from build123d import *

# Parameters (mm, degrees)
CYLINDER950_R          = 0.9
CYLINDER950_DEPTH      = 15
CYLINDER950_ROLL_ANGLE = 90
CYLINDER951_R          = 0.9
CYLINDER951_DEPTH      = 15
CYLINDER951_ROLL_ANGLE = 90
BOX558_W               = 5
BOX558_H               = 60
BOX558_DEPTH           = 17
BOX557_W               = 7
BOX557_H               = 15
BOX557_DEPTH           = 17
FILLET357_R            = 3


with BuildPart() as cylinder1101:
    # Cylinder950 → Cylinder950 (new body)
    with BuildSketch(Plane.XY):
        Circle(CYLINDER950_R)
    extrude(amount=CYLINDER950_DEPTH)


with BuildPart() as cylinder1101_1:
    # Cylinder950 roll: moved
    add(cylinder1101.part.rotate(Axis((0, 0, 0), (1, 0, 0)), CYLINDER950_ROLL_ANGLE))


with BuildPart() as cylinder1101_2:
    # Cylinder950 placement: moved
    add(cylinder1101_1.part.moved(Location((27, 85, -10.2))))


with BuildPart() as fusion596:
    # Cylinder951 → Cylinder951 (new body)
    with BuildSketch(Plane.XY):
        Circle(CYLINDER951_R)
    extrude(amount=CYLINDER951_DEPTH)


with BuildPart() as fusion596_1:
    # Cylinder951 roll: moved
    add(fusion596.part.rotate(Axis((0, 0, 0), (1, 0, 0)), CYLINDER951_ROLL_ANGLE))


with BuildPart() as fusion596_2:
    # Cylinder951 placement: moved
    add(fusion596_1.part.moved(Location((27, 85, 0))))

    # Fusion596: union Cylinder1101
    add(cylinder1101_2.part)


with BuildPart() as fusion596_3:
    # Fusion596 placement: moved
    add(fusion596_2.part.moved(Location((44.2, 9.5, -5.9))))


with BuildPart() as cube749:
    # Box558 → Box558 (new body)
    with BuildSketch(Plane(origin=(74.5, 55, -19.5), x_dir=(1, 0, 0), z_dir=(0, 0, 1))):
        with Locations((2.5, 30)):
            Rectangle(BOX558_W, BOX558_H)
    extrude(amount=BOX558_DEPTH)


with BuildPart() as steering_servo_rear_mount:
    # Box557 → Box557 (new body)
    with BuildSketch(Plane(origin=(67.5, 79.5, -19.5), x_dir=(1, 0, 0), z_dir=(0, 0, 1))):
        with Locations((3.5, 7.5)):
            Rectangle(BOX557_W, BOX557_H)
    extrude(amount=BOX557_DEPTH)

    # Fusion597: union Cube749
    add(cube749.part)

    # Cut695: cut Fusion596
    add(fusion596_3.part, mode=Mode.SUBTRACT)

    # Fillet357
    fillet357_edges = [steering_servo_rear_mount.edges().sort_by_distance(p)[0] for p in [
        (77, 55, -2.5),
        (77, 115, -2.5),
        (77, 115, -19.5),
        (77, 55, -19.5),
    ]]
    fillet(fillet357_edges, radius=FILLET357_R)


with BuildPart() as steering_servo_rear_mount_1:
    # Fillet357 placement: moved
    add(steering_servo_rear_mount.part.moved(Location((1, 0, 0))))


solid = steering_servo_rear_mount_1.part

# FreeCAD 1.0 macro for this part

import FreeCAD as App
import Part
import Sketcher

V = App.Vector
Q = App.Units.Quantity


def edges_at(feature, points):
    """Names of the edges that pass closest to the given points."""
    edges = feature.Shape.Edges
    near = lambda p: min(range(len(edges)), key=lambda i: edges[i].distToShape(Part.Vertex(*p))[0])
    return sorted({f"Edge{near(p) + 1}" for p in points})


def add_polygon(sketch, points):
    """Adds a closed chain of lines whose ends are joined by coincident constraints."""
    first, n = sketch.GeometryCount, len(points)
    for a, b in zip(points, points[1:] + points[:1]):
        sketch.addGeometry(Part.LineSegment(App.Vector(*a, 0), App.Vector(*b, 0)), False)
    for i in range(n):
        sketch.addConstraint(Sketcher.Constraint("Coincident", first + i, 2, first + (i + 1) % n, 1))

doc = App.newDocument("Part")
body = doc.addObject("PartDesign::Body", "Body")

# Sketch on XY plane
sketch1 = doc.addObject("Sketcher::SketchObject", "Sketch")
body.addObject(sketch1)
sketch1.AttachmentSupport = (doc.XY_Plane, [""])
sketch1.MapMode = "FlatFace"
sketch1.addGeometry(Part.Circle(V(0, 0, 0), V(0, 0, 1), 0.9), False)
sketch1.addConstraint([
    Sketcher.Constraint("Coincident", 0, 3, -1, 1),
    Sketcher.Constraint("Diameter", 0, Q("1.8 mm")),
])
pad1 = doc.addObject("PartDesign::Pad", "Pad")
body.addObject(pad1)
pad1.Profile = sketch1
pad1.Length = 15
body2 = doc.addObject("PartDesign::Body", "Body001")
doc.recompute()

body.Placement = App.Placement(V(0, 0, 0), App.Rotation(V(1, 0, 0), 90))
boolean = doc.addObject("PartDesign::Boolean", "Boolean")
body2.addObject(boolean)
boolean.Type = "Fuse"
boolean.addObjects([body])
body3 = doc.addObject("PartDesign::Body", "Body002")
doc.recompute()

body2.Placement = App.Placement(V(27, 85, -10.2), App.Rotation(V(0, 0, 1), 0))
boolean2 = doc.addObject("PartDesign::Boolean", "Boolean001")
body3.addObject(boolean2)
boolean2.Type = "Fuse"
boolean2.addObjects([body2])
body4 = doc.addObject("PartDesign::Body", "Body003")

# Sketch on XY plane
sketch2 = doc.addObject("Sketcher::SketchObject", "Sketch001")
body4.addObject(sketch2)
sketch2.AttachmentSupport = (doc.getObject("XY_Plane003"), [""])
sketch2.MapMode = "FlatFace"
sketch2.addGeometry(Part.Circle(V(0, 0, 0), V(0, 0, 1), 0.9), False)
sketch2.addConstraint([
    Sketcher.Constraint("Coincident", 0, 3, -1, 1),
    Sketcher.Constraint("Diameter", 0, Q("1.8 mm")),
])
pad2 = doc.addObject("PartDesign::Pad", "Pad001")
body4.addObject(pad2)
pad2.Profile = sketch2
pad2.Length = 15
body5 = doc.addObject("PartDesign::Body", "Body004")
doc.recompute()

body4.Placement = App.Placement(V(0, 0, 0), App.Rotation(V(1, 0, 0), 90))
boolean3 = doc.addObject("PartDesign::Boolean", "Boolean002")
body5.addObject(boolean3)
boolean3.Type = "Fuse"
boolean3.addObjects([body4])
body6 = doc.addObject("PartDesign::Body", "Body005")
body6.AllowCompound = True
doc.recompute()

body5.Placement = App.Placement(V(27, 85, 0), App.Rotation(V(0, 0, 1), 0))
boolean4 = doc.addObject("PartDesign::Boolean", "Boolean003")
body6.addObject(boolean4)
boolean4.Type = "Fuse"
boolean4.addObjects([body5])
doc.recompute()

boolean5 = doc.addObject("PartDesign::Boolean", "Boolean004")
body6.addObject(boolean5)
boolean5.Type = "Fuse"
boolean5.addObjects([body3])
body7 = doc.addObject("PartDesign::Body", "Body006")
body7.AllowCompound = True
doc.recompute()

body6.Placement = App.Placement(V(44.2, 9.5, -5.9), App.Rotation(V(0, 0, 1), 0))
boolean6 = doc.addObject("PartDesign::Boolean", "Boolean005")
body7.addObject(boolean6)
boolean6.Type = "Fuse"
boolean6.addObjects([body6])
body8 = doc.addObject("PartDesign::Body", "Body007")

# Sketch on XY plane
sketch3 = doc.addObject("Sketcher::SketchObject", "Sketch002")
body8.addObject(sketch3)
sketch3.AttachmentSupport = (doc.getObject("XY_Plane007"), [""])
sketch3.MapMode = "FlatFace"
sketch3.AttachmentOffset = App.Placement(V(0, 0, -19.5), App.Rotation())
add_polygon(sketch3, [(74.5, 115), (74.5, 55), (79.5, 55), (79.5, 115)])  # lines 0-3
sketch3.addConstraint([
    Sketcher.Constraint("Vertical", 0),
    Sketcher.Constraint("Horizontal", 1),
    Sketcher.Constraint("Vertical", 2),
    Sketcher.Constraint("Horizontal", 3),
    Sketcher.Constraint("DistanceX", 1, 1, 1, 2, Q("5 mm")),
    Sketcher.Constraint("DistanceY", 0, 2, 0, 1, Q("60 mm")),
    Sketcher.Constraint("DistanceY", -1, 1, 0, 2, Q("55 mm")),
    Sketcher.Constraint("DistanceX", -1, 1, 0, 2, Q("74.5 mm")),
])
pad3 = doc.addObject("PartDesign::Pad", "Pad002")
body8.addObject(pad3)
pad3.Profile = sketch3
pad3.Length = 17
body9 = doc.addObject("PartDesign::Body", "Body008")

# Sketch on XY plane
sketch4 = doc.addObject("Sketcher::SketchObject", "Sketch003")
body9.addObject(sketch4)
sketch4.AttachmentSupport = (doc.getObject("XY_Plane008"), [""])
sketch4.MapMode = "FlatFace"
sketch4.AttachmentOffset = App.Placement(V(0, 0, -19.5), App.Rotation())
add_polygon(sketch4, [(67.5, 94.5), (67.5, 79.5), (74.5, 79.5), (74.5, 94.5)])  # lines 0-3
sketch4.addConstraint([
    Sketcher.Constraint("Vertical", 0),
    Sketcher.Constraint("Horizontal", 1),
    Sketcher.Constraint("Vertical", 2),
    Sketcher.Constraint("Horizontal", 3),
    Sketcher.Constraint("DistanceX", 1, 1, 1, 2, Q("7 mm")),
    Sketcher.Constraint("DistanceY", 0, 2, 0, 1, Q("15 mm")),
    Sketcher.Constraint("DistanceX", -1, 1, 0, 2, Q("67.5 mm")),
    Sketcher.Constraint("DistanceY", -1, 1, 0, 2, Q("79.5 mm")),
])
pad4 = doc.addObject("PartDesign::Pad", "Pad003")
body9.addObject(pad4)
pad4.Profile = sketch4
pad4.Length = 17
doc.recompute()

boolean7 = doc.addObject("PartDesign::Boolean", "Boolean006")
body9.addObject(boolean7)
boolean7.Type = "Fuse"
boolean7.addObjects([body8])
doc.recompute()

boolean8 = doc.addObject("PartDesign::Boolean", "Boolean007")
body9.addObject(boolean8)
boolean8.Type = "Cut"
boolean8.addObjects([body7])
doc.recompute()

fillet = doc.addObject("PartDesign::Fillet", "Fillet")
body9.addObject(fillet)
fillet.Base = (boolean8, edges_at(boolean8, [
    (77, 55, -2.5),
    (77, 115, -2.5),
    (77, 115, -19.5),
    (77, 55, -19.5),
]))
fillet.Radius = 3
body10 = doc.addObject("PartDesign::Body", "Body009")
doc.recompute()

body9.Placement = App.Placement(V(1, 0, 0), App.Rotation(V(0, 0, 1), 0))
boolean9 = doc.addObject("PartDesign::Boolean", "Boolean008")
body10.addObject(boolean9)
boolean9.Type = "Fuse"
boolean9.addObjects([body9])

doc.recompute()
